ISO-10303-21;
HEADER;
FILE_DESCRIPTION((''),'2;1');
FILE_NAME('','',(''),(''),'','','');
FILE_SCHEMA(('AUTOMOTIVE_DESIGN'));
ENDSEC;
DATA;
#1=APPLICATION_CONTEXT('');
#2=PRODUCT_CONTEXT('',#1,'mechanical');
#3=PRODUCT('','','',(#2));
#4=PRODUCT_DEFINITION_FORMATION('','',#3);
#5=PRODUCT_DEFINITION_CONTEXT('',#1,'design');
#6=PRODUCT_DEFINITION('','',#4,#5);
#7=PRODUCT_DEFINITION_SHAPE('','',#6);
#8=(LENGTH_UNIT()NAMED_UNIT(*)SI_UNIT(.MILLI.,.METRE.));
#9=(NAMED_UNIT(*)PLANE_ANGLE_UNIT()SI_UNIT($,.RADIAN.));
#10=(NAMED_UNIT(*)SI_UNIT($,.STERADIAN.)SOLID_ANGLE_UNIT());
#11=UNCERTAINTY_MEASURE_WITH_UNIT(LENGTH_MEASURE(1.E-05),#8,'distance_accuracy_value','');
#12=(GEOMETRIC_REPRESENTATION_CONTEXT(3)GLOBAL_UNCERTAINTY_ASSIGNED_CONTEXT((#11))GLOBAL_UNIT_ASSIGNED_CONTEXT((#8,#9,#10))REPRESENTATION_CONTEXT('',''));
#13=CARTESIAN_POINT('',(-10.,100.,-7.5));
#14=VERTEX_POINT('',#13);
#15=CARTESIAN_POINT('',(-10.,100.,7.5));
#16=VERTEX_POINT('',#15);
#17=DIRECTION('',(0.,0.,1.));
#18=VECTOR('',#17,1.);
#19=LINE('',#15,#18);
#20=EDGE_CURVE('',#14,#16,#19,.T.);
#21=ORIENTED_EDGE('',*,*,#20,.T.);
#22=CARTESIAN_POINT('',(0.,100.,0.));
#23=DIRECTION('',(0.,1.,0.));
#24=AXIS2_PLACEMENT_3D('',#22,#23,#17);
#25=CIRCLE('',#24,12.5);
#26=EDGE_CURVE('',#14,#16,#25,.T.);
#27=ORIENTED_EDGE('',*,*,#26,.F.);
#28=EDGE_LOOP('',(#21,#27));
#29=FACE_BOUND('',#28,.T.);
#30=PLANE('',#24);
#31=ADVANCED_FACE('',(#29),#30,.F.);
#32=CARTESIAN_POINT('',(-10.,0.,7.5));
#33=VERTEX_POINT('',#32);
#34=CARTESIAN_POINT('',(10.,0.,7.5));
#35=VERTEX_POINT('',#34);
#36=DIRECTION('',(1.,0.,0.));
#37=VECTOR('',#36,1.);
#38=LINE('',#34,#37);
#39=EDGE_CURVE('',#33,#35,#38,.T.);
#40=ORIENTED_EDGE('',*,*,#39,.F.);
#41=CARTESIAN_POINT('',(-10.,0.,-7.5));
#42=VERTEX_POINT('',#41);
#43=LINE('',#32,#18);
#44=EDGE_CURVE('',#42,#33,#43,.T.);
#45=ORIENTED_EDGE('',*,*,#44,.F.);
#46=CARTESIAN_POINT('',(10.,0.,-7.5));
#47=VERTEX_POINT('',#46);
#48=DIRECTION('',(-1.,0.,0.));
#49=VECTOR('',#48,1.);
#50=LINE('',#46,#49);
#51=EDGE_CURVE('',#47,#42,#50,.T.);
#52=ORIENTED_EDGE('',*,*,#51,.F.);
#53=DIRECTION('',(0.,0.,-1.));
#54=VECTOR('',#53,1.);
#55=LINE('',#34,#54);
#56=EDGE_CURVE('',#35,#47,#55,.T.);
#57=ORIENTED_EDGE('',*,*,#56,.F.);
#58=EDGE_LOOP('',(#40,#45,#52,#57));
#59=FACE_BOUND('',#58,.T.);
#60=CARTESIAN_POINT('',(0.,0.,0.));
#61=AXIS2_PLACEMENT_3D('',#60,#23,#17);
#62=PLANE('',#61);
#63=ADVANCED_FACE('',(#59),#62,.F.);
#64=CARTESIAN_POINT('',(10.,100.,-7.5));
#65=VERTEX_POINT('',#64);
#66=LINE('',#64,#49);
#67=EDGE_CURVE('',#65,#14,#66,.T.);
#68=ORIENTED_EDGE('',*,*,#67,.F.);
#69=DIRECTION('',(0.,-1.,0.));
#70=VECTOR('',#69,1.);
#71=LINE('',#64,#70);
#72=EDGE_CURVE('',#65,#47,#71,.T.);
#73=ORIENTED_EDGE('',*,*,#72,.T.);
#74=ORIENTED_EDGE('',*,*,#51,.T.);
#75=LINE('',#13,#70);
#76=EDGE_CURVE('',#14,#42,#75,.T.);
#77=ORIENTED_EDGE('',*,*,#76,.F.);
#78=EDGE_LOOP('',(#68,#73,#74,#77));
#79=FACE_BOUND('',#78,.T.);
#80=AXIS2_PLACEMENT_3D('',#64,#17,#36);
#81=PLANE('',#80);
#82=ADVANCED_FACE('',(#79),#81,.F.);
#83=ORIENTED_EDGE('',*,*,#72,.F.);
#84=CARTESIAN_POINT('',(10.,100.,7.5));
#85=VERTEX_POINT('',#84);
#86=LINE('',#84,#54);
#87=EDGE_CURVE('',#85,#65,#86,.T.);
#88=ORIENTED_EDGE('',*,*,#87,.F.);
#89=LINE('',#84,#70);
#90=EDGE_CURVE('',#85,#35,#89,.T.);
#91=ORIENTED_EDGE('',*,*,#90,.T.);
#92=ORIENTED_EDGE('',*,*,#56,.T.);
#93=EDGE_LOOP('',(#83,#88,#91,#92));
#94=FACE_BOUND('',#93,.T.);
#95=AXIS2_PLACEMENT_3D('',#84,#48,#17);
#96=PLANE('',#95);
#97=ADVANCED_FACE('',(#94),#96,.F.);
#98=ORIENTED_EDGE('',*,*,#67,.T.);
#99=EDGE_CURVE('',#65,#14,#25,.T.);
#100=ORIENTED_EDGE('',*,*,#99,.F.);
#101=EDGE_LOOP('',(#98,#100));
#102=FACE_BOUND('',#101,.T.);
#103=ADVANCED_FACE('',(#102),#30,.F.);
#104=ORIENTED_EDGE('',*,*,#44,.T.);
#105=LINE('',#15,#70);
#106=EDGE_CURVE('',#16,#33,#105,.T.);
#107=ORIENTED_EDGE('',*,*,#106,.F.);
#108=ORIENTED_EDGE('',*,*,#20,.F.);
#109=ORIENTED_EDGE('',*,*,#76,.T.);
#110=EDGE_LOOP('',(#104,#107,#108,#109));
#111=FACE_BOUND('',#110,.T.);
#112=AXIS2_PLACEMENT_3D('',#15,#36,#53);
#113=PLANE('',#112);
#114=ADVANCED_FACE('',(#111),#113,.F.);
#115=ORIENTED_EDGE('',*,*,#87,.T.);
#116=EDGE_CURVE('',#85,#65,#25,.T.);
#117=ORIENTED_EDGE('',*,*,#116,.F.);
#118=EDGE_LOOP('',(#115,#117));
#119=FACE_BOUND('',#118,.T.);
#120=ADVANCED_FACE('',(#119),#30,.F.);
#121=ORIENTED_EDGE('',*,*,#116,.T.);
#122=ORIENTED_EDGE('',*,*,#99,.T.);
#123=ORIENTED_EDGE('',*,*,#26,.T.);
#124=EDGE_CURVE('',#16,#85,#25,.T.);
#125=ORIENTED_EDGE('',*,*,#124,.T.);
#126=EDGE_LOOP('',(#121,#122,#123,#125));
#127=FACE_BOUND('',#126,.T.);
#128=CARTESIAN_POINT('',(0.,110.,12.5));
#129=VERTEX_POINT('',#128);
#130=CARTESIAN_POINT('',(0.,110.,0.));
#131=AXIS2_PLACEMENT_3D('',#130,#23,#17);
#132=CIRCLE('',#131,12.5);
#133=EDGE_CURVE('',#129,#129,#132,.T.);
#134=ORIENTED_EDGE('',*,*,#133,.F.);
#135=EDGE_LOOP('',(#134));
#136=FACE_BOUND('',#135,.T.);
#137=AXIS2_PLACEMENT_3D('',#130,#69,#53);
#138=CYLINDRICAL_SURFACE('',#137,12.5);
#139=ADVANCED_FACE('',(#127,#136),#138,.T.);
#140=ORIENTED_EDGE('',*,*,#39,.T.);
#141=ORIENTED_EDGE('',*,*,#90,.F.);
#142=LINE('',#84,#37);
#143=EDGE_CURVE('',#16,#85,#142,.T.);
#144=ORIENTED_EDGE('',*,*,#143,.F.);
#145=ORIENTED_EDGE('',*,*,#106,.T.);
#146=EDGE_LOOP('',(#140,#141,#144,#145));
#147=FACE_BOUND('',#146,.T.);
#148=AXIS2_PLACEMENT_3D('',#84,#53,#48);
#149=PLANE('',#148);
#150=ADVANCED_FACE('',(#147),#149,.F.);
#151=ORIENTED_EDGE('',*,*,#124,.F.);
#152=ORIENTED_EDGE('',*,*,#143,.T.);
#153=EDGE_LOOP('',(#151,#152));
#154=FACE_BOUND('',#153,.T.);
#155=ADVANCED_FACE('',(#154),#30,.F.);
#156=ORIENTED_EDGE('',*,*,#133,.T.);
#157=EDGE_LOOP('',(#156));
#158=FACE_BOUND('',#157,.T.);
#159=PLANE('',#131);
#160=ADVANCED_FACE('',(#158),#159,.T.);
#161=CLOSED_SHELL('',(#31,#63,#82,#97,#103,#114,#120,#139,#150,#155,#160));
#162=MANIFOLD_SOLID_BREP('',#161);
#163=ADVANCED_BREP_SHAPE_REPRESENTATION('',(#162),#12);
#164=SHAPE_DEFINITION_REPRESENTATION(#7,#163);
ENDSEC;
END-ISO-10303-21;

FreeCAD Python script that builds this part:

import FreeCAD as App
import Part
import Sketcher

V = App.Vector


def add_polygon(sketch, points):
    """Adds a closed chain of lines whose ends are joined by coincident constraints."""
    first, n = sketch.GeometryCount, len(points)
    for a, b in zip(points, points[1:] + points[:1]):
        sketch.addGeometry(Part.LineSegment(App.Vector(*a, 0), App.Vector(*b, 0)), False)
    for i in range(n):
        sketch.addConstraint(Sketcher.Constraint("Coincident", first + i, 2, first + (i + 1) % n, 1))

doc = App.newDocument("Part")
params = doc.addObject("Spreadsheet::Sheet", "Params")
for row, (alias, value) in enumerate([
    ("sketch1_width", "20 mm"),
    ("sketch1_height", "15 mm"),
    ("pad1_length", "100 mm"),
    ("sketch2_diameter", "25 mm"),
    ("pad2_length", "10 mm"),
], start=1):
    params.set(f"A{row}", alias)
    params.set(f"B{row}", "=" + value)
    params.setAlias(f"B{row}", alias)

body = doc.addObject("PartDesign::Body", "Body")

sketch1 = body.newObject("Sketcher::SketchObject", "Sketch")
sketch1.AttachmentSupport = (doc.getObject("XZ_Plane"), [""])
sketch1.MapMode = "FlatFace"
add_polygon(sketch1, [(-10, -8), (-10, 8), (10, 8), (10, -8)])
sketch1.addConstraint(Sketcher.Constraint("Vertical", 0))
sketch1.addConstraint(Sketcher.Constraint("Horizontal", 1))
sketch1.addConstraint(Sketcher.Constraint("Vertical", 2))
sketch1.addConstraint(Sketcher.Constraint("Horizontal", 3))
sketch1.addConstraint(Sketcher.Constraint("Symmetric", 0, 2, 2, 2, -1, 1))
sketch1.addConstraint(Sketcher.Constraint("DistanceX", 1, 1, 1, 2, 20.0))
sketch1.addConstraint(Sketcher.Constraint("DistanceY", 0, 1, 0, 2, 15.0))
sketch1.setExpression("Constraints[9]", "Params.sketch1_width")
sketch1.setExpression("Constraints[10]", "Params.sketch1_height")
pad1 = body.newObject("PartDesign::Pad", "Pad")
pad1.Profile = sketch1
pad1.setExpression("Length", "Params.pad1_length")
pad1.Reversed = True

sketch2 = body.newObject("Sketcher::SketchObject", "Sketch001")
sketch2.AttachmentSupport = (doc.getObject("XZ_Plane"), [""])
sketch2.MapMode = "FlatFace"
sketch2.AttachmentOffset = App.Placement(V(0, 0, -100), App.Rotation())
sketch2.addGeometry(Part.Circle(V(0, 0, 0), V(0, 0, 1), 12), False)
sketch2.addConstraint(Sketcher.Constraint("Coincident", 0, 3, -1, 1))
sketch2.addConstraint(Sketcher.Constraint("Diameter", 0, 25.0))
sketch2.setExpression("Constraints[1]", "Params.sketch2_diameter")
pad2 = body.newObject("PartDesign::Pad", "Pad001")
pad2.Profile = sketch2
pad2.setExpression("Length", "Params.pad2_length")
pad2.Reversed = True

doc.recompute()
